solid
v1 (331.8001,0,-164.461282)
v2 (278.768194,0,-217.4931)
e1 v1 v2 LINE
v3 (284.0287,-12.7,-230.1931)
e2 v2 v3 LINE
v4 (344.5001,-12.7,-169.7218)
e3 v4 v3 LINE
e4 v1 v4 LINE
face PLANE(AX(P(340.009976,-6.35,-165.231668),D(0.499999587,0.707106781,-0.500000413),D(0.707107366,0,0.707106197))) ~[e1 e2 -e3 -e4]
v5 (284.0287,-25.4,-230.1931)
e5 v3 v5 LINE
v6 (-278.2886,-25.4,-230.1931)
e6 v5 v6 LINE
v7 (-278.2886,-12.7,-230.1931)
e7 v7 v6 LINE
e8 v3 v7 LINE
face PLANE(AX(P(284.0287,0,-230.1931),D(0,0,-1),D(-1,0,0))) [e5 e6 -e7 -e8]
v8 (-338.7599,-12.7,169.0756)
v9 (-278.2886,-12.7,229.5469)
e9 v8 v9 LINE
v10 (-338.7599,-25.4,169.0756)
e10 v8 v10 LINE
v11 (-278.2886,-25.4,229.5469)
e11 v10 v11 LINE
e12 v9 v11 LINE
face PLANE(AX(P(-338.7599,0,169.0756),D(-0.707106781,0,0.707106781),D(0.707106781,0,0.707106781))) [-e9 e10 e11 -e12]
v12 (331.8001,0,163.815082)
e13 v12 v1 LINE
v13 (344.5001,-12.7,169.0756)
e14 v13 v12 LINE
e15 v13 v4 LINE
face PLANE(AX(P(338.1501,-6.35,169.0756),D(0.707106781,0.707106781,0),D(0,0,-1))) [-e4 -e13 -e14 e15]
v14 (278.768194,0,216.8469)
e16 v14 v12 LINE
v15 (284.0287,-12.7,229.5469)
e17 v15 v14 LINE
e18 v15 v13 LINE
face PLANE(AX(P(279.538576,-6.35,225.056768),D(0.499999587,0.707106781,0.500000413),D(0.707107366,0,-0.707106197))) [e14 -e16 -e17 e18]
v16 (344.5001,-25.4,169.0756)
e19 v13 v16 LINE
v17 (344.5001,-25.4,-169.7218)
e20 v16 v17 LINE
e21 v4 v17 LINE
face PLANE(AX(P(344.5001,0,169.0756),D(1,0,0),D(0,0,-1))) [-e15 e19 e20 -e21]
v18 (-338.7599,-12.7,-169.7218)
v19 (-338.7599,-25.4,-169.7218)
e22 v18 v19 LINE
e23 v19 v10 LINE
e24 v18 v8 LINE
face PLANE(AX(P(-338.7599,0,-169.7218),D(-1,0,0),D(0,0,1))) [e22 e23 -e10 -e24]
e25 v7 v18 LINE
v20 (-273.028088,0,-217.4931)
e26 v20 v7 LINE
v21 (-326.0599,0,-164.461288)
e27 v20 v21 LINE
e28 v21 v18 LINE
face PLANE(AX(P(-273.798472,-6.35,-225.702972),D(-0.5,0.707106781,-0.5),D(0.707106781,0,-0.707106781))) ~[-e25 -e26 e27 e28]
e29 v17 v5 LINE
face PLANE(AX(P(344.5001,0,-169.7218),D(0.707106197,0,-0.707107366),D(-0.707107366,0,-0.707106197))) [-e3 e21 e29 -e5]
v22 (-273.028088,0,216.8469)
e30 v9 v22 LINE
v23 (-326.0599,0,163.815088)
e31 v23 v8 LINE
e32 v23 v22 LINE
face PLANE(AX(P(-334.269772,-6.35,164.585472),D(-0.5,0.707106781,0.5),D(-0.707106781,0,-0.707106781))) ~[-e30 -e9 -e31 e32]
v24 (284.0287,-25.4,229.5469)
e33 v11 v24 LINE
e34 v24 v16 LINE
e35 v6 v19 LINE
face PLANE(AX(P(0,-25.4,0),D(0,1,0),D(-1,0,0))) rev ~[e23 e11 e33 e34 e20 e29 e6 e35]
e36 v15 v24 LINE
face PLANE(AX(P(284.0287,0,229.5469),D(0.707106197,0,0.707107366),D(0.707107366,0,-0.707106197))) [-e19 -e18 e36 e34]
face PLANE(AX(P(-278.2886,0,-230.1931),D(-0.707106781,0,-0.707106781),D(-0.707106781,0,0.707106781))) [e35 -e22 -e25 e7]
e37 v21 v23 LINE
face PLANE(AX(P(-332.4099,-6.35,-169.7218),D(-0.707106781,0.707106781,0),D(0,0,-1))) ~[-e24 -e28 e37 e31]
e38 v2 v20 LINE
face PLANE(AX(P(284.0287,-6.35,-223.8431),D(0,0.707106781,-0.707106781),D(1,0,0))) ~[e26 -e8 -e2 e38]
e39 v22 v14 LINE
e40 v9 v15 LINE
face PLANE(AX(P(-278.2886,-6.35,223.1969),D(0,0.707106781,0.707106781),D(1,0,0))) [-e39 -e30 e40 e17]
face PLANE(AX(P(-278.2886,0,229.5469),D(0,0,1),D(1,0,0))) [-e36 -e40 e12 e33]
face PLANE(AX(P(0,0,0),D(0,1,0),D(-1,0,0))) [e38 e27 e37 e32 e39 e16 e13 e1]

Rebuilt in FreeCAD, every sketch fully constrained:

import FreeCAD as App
import Part
import Sketcher
from FreeCAD import Vector
Q = App.Units.Quantity


def edges_at(feature, points):
    """Names of the edges that pass closest to the given points."""
    edges = feature.Shape.Edges
    near = lambda p: min(range(len(edges)), key=lambda i: edges[i].distToShape(Part.Vertex(*p))[0])
    return sorted({f"Edge{near(p) + 1}" for p in points})


def add_polygon(sketch, points):
    """Adds a closed chain of lines whose ends are joined by coincident constraints."""
    first, n = sketch.GeometryCount, len(points)
    for a, b in zip(points, points[1:] + points[:1]):
        sketch.addGeometry(Part.LineSegment(App.Vector(*a, 0), App.Vector(*b, 0)), False)
    for i in range(n):
        sketch.addConstraint(Sketcher.Constraint("Coincident", first + i, 2, first + (i + 1) % n, 1))

doc = App.newDocument("Part")
body = doc.addObject("PartDesign::Body", "Body")

sketch1 = body.newObject("Sketcher::SketchObject", "Sketch")
sketch1.AttachmentSupport = (doc.getObject("XZ_Plane"), [""])
sketch1.MapMode = "FlatFace"
add_polygon(sketch1, [(284, 230), (345, 169), (345, -170), (284, -230), (-278, -230), (-339, -170), (-339, 169), (-278, 230)])
sketch1.addConstraint([
    Sketcher.Constraint("Vertical", 1),
    Sketcher.Constraint("Horizontal", 3),
    Sketcher.Constraint("Vertical", 5),
    Sketcher.Constraint("Horizontal", 7),
    Sketcher.Constraint("Perpendicular", 0, 2),
    Sketcher.Constraint("Perpendicular", 2, 4),
    Sketcher.Constraint("Perpendicular", 4, 6),
    Sketcher.Constraint("Horizontal", 1, 2, 4, 2),
    Sketcher.Constraint("Horizontal", 0, 2, 5, 2),
    Sketcher.Constraint("Vertical", 3, 2, 6, 2),
    Sketcher.Constraint("Vertical", 2, 2, 7, 2),
    Sketcher.Constraint("DistanceX", 4, 2, 1, 2, Q("26.9 in")),
    Sketcher.Constraint("DistanceY", 3, 2, 6, 2, Q("18.1 in")),
    Sketcher.Constraint("DistanceX", -1, 1, 0, 2, Q("13.563 in")),
    Sketcher.Constraint("Distance", 0, Q("3.3669 in")),
    Sketcher.Constraint("DistanceY", -1, 1, 0, 2, 169.0756),
])
pad1 = body.newObject("PartDesign::Pad", "Pad")
pad1.Profile = sketch1
pad1.Length = Q("1 in")
doc.recompute()

chamfer = body.newObject("PartDesign::Chamfer", "Chamfer")
chamfer.Base = (pad1, edges_at(pad1, [
    (-338.76, 0, -0.323),
    (-308.524, 0, -199.958),
    (2.87, 0, -230.193),
    (314.264, 0, -199.958),
    (344.5, 0, -0.323),
    (314.264, 0, 199.311),
    (2.87, 0, 229.547),
    (-308.524, 0, 199.311),
]))
chamfer.Size = Q("0.5 in")

doc.recompute()
